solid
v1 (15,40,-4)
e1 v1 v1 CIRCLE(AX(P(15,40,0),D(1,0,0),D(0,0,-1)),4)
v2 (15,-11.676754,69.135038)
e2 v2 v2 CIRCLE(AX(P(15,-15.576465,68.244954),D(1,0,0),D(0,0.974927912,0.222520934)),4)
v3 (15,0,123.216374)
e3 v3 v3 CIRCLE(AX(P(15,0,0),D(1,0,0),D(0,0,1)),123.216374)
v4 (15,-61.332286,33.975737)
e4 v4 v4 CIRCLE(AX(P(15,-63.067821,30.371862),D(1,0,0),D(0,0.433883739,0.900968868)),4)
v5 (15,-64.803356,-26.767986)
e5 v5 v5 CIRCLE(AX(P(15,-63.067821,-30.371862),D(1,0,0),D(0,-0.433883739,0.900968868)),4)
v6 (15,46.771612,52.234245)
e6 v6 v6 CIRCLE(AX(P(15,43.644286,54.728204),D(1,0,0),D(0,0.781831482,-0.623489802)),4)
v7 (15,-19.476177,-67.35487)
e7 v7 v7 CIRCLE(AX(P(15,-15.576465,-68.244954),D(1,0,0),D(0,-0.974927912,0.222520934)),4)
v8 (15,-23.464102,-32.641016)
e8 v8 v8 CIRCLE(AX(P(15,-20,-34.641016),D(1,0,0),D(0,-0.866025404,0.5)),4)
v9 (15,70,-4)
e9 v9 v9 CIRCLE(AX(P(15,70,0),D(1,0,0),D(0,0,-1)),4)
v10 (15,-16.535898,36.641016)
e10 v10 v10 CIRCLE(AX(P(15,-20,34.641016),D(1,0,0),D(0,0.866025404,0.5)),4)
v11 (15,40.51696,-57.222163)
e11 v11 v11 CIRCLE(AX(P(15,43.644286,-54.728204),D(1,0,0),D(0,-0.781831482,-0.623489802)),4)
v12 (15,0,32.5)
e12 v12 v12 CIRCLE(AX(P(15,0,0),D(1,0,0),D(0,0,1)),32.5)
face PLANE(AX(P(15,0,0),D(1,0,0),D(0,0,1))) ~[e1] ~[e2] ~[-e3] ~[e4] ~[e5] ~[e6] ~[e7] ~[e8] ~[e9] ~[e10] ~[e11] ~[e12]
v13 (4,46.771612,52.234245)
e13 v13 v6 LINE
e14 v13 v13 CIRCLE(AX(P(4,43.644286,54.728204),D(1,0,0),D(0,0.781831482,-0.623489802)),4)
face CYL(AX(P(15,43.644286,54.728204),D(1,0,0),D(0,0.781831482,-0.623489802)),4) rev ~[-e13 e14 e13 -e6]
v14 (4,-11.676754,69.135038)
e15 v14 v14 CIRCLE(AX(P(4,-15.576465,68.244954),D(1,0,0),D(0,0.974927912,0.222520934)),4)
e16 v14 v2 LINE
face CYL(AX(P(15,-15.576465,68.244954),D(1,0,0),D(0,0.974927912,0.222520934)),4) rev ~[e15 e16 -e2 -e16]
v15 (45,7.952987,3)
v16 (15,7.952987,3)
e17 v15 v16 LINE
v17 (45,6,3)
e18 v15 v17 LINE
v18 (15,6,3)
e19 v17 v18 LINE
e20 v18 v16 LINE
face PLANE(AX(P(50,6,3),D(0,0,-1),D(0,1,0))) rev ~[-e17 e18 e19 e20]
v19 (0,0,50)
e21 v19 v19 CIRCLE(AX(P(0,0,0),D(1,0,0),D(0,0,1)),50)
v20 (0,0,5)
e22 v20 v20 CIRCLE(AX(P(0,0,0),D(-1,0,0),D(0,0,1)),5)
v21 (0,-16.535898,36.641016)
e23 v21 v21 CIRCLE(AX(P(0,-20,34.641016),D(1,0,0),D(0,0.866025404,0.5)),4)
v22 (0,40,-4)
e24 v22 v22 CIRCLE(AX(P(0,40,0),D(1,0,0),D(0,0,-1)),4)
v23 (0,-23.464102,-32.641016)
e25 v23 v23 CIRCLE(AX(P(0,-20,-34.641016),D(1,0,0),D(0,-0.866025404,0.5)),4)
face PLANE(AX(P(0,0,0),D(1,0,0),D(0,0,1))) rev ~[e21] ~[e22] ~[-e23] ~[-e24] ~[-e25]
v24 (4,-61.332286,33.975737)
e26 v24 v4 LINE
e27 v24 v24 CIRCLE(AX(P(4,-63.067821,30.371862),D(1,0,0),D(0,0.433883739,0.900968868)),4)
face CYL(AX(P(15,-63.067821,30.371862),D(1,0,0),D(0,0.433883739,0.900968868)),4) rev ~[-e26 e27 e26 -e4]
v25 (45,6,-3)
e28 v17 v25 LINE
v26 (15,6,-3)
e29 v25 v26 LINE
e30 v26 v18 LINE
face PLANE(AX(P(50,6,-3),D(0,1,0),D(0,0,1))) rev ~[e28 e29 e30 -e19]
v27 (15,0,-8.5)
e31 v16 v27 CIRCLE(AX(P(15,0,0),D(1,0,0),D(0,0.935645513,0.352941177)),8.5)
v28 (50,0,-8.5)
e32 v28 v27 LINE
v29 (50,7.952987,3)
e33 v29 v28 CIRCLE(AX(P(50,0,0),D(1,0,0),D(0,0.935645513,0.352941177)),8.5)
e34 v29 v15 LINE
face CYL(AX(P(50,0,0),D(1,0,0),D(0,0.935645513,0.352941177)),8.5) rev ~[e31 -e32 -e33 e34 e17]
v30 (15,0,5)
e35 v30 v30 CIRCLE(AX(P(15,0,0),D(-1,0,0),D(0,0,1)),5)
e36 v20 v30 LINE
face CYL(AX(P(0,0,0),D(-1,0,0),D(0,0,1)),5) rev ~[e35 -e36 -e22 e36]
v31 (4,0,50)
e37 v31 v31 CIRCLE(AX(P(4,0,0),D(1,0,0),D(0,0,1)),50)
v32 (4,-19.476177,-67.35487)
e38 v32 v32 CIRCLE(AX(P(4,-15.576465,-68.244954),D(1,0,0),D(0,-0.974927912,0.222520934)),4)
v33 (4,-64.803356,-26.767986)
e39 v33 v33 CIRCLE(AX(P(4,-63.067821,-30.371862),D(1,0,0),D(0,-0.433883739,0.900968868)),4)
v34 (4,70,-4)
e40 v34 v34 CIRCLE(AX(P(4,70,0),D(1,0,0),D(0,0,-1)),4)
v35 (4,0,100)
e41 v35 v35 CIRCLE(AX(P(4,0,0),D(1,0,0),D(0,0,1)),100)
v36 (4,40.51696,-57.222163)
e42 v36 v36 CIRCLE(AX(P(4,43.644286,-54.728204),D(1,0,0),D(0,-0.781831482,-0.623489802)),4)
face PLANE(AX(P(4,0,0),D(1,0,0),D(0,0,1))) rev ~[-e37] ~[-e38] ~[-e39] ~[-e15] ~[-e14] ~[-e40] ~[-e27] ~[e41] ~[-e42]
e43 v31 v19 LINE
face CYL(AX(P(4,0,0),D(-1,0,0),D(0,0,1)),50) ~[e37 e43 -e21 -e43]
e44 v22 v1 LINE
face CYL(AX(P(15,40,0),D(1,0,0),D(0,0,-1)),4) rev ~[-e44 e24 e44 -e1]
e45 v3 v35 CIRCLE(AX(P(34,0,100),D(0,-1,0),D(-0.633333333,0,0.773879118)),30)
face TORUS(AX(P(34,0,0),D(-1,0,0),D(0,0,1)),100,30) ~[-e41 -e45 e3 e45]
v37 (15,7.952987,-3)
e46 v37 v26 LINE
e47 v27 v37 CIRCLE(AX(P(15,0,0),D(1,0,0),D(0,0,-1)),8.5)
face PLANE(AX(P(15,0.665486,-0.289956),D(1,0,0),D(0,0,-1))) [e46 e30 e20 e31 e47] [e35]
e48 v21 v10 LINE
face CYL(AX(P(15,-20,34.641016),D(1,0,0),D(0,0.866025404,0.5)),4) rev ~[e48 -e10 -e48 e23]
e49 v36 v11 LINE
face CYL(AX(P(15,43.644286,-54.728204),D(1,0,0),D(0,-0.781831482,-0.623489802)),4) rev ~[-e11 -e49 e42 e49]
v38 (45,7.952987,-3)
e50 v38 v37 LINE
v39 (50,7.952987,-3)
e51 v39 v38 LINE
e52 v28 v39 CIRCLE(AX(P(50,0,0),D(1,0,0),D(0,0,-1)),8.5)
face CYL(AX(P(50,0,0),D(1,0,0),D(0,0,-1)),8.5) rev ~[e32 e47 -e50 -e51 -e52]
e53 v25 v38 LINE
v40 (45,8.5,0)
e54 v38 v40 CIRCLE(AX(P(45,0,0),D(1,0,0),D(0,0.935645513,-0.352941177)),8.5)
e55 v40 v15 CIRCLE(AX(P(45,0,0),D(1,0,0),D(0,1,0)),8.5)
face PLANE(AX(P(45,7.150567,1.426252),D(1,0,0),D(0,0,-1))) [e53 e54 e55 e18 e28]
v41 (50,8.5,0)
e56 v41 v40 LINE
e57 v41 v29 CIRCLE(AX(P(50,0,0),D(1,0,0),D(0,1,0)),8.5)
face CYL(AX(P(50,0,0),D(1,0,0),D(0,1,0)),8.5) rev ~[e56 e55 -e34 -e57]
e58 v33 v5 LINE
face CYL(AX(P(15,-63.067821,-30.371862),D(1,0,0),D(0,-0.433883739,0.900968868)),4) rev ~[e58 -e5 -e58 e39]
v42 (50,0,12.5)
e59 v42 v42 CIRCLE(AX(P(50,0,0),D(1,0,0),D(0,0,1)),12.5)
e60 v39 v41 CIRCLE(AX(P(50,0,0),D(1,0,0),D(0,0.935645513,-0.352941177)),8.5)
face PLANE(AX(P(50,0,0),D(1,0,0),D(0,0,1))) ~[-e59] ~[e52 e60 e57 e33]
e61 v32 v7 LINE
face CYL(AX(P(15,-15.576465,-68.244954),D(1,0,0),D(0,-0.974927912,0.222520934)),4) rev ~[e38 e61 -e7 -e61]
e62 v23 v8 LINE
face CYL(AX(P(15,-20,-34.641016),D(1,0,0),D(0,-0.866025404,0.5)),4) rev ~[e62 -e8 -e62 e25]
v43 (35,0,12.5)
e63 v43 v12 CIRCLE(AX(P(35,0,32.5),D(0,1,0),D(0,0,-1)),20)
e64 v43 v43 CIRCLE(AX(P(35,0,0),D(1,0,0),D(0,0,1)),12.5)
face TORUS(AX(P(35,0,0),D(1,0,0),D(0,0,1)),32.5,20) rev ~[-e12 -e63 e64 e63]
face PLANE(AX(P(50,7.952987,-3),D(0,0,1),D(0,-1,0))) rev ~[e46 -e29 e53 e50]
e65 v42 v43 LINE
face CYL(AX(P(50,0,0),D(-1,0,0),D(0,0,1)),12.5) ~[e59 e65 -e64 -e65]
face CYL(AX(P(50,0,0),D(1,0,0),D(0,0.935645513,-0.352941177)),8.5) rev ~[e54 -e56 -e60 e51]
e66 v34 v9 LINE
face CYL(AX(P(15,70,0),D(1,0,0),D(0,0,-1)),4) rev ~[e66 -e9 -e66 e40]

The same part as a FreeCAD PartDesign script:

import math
import FreeCAD as App
import Part
import Sketcher

doc = App.newDocument("Part")
body = doc.addObject("PartDesign::Body", "Body")

# Sketch on XY plane
sketch1 = body.newObject("Sketcher::SketchObject", "Sketch")
sketch1.AttachmentSupport = (doc.getObject("XY_Plane"), [""])
sketch1.MapMode = "FlatFace"
sketch1.addGeometry(Part.LineSegment(App.Vector(0, 0, 0), App.Vector(50, 0, 0)), False)
sketch1.addGeometry(Part.LineSegment(App.Vector(50, 0, 0), App.Vector(50, 12.5, 0)), False)
sketch1.addGeometry(Part.LineSegment(App.Vector(50, 12.5, 0), App.Vector(35, 12.5, 0)), False)
sketch1.addGeometry(Part.ArcOfCircle(Part.Circle(App.Vector(35, 32.5, 0), App.Vector(0, 0, 1), 20), math.radians(180), math.radians(270)), False)
sketch1.addGeometry(Part.LineSegment(App.Vector(15, 32.5, 0), App.Vector(15, 123.216374, 0)), False)
sketch1.addGeometry(Part.ArcOfCircle(Part.Circle(App.Vector(34, 100, 0), App.Vector(0, 0, 1), 30), math.radians(129.29648), math.radians(180)), False)
sketch1.addGeometry(Part.LineSegment(App.Vector(4, 100, 0), App.Vector(4, 50, 0)), False)
sketch1.addGeometry(Part.LineSegment(App.Vector(4, 50, 0), App.Vector(0, 50, 0)), False)
sketch1.addGeometry(Part.LineSegment(App.Vector(0, 50, 0), App.Vector(0, 0, 0)), False)
sketch1.addConstraint(Sketcher.Constraint("Coincident", 0, 2, 1, 1))
sketch1.addConstraint(Sketcher.Constraint("Coincident", 1, 2, 2, 1))
sketch1.addConstraint(Sketcher.Constraint("Tangent", 2, 2, 3, 2))
sketch1.addConstraint(Sketcher.Constraint("Tangent", 3, 1, 4, 1))
sketch1.addConstraint(Sketcher.Constraint("Coincident", 4, 2, 5, 1))
sketch1.addConstraint(Sketcher.Constraint("Tangent", 5, 2, 6, 1))
sketch1.addConstraint(Sketcher.Constraint("Coincident", 6, 2, 7, 1))
sketch1.addConstraint(Sketcher.Constraint("Coincident", 7, 2, 8, 1))
sketch1.addConstraint(Sketcher.Constraint("Coincident", 8, 2, 0, 1))
sketch1.addConstraint(Sketcher.Constraint("Horizontal", 0))
sketch1.addConstraint(Sketcher.Constraint("Vertical", 1))
sketch1.addConstraint(Sketcher.Constraint("Horizontal", 2))
sketch1.addConstraint(Sketcher.Constraint("Vertical", 4))
sketch1.addConstraint(Sketcher.Constraint("Vertical", 6))
sketch1.addConstraint(Sketcher.Constraint("Horizontal", 7))
sketch1.addConstraint(Sketcher.Constraint("Vertical", 8))
sketch1.addConstraint(Sketcher.Constraint("Coincident", 8, 2, -1, 1))
sketch1.addConstraint(Sketcher.Constraint("Equal", 0, 6))
sketch1.addConstraint(Sketcher.Constraint("Equal", 6, 8))
sketch1.addConstraint(Sketcher.Constraint("Radius", 3, 20.0))
sketch1.addConstraint(Sketcher.Constraint("Radius", 5, 30.0))
sketch1.addConstraint(Sketcher.Constraint("DistanceX", 0, 1, 0, 2, 50.0))
sketch1.addConstraint(Sketcher.Constraint("DistanceX", 2, 2, 2, 1, 15.0))
sketch1.addConstraint(Sketcher.Constraint("DistanceX", 7, 2, 7, 1, 4.0))
sketch1.addConstraint(Sketcher.Constraint("DistanceY", 1, 1, 1, 2, 12.5))
revolution = body.newObject("PartDesign::Revolution", "Revolution")
revolution.Profile = sketch1
revolution.ReferenceAxis = (sketch1, ["H_Axis"])
revolution.Angle = 360

# Sketch on YZ plane
sketch2 = body.newObject("Sketcher::SketchObject", "Sketch001")
sketch2.AttachmentSupport = (doc.getObject("YZ_Plane"), [""])
sketch2.MapMode = "FlatFace"
sketch2.AttachmentOffset = App.Placement(App.Vector(0, 0, 50), App.Rotation())
sketch2.addGeometry(Part.LineSegment(App.Vector(6, 3, 0), App.Vector(7.952987, 3, 0)), False)
sketch2.addGeometry(Part.ArcOfCircle(Part.Circle(App.Vector(0, 0, 0), App.Vector(0, 0, 1), 8.5), math.radians(20.667316), math.radians(270)), False)
sketch2.addGeometry(Part.ArcOfCircle(Part.Circle(App.Vector(0, 0, 0), App.Vector(0, 0, 1), 8.5), math.radians(-90), math.radians(-20.667316)), False)
sketch2.addGeometry(Part.LineSegment(App.Vector(7.952987, -3, 0), App.Vector(6, -3, 0)), False)
sketch2.addGeometry(Part.LineSegment(App.Vector(6, -3, 0), App.Vector(6, 3, 0)), False)
sketch2.addConstraint(Sketcher.Constraint("Coincident", 0, 2, 1, 1))
sketch2.addConstraint(Sketcher.Constraint("Tangent", 1, 2, 2, 1))
sketch2.addConstraint(Sketcher.Constraint("Coincident", 2, 2, 3, 1))
sketch2.addConstraint(Sketcher.Constraint("Coincident", 3, 2, 4, 1))
sketch2.addConstraint(Sketcher.Constraint("Coincident", 4, 2, 0, 1))
sketch2.addConstraint(Sketcher.Constraint("Horizontal", 0))
sketch2.addConstraint(Sketcher.Constraint("Horizontal", 3))
sketch2.addConstraint(Sketcher.Constraint("Vertical", 4))
sketch2.addConstraint(Sketcher.Constraint("Coincident", 1, 3, -1, 1))
sketch2.addConstraint(Sketcher.Constraint("Equal", 1, 2))
sketch2.addConstraint(Sketcher.Constraint("PointOnObject", 1, 2, -2))
sketch2.addConstraint(Sketcher.Constraint("Vertical", 0, 2, 2, 2))
sketch2.addConstraint(Sketcher.Constraint("Radius", 1, 8.5))
sketch2.addConstraint(Sketcher.Constraint("DistanceY", 4, 1, 4, 2, 6.0))
sketch2.addConstraint(Sketcher.Constraint("DistanceX", -1, 1, 3, 2, 6.0))
pocket1 = body.newObject("PartDesign::Pocket", "Pocket")
pocket1.Profile = sketch2
pocket1.Length = 35

# Sketch on YZ plane
sketch3 = body.newObject("Sketcher::SketchObject", "Sketch002")
sketch3.AttachmentSupport = (doc.getObject("YZ_Plane"), [""])
sketch3.MapMode = "FlatFace"
sketch3.AttachmentOffset = App.Placement(App.Vector(0, 0, 50), App.Rotation())
sketch3.addGeometry(Part.ArcOfCircle(Part.Circle(App.Vector(0, 0, 0), App.Vector(0, 0, 1), 8.5), math.radians(0), math.radians(20.667317)), False)
sketch3.addGeometry(Part.LineSegment(App.Vector(7.952987, 3, 0), App.Vector(6, 3, 0)), False)
sketch3.addGeometry(Part.LineSegment(App.Vector(6, 3, 0), App.Vector(6, -3, 0)), False)
sketch3.addGeometry(Part.LineSegment(App.Vector(6, -3, 0), App.Vector(7.952987, -3, 0)), False)
sketch3.addGeometry(Part.ArcOfCircle(Part.Circle(App.Vector(0, 0, 0), App.Vector(0, 0, 1), 8.5), math.radians(-20.667317), math.radians(0)), False)
sketch3.addConstraint(Sketcher.Constraint("Coincident", 0, 2, 1, 1))
sketch3.addConstraint(Sketcher.Constraint("Coincident", 1, 2, 2, 1))
sketch3.addConstraint(Sketcher.Constraint("Coincident", 2, 2, 3, 1))
sketch3.addConstraint(Sketcher.Constraint("Coincident", 3, 2, 4, 1))
sketch3.addConstraint(Sketcher.Constraint("Tangent", 4, 2, 0, 1))
sketch3.addConstraint(Sketcher.Constraint("Horizontal", 1))
sketch3.addConstraint(Sketcher.Constraint("Vertical", 2))
sketch3.addConstraint(Sketcher.Constraint("Horizontal", 3))
sketch3.addConstraint(Sketcher.Constraint("Coincident", 0, 3, -1, 1))
sketch3.addConstraint(Sketcher.Constraint("Equal", 0, 4))
sketch3.addConstraint(Sketcher.Constraint("PointOnObject", 4, 2, -1))
sketch3.addConstraint(Sketcher.Constraint("Vertical", 0, 2, 3, 2))
sketch3.addConstraint(Sketcher.Constraint("Radius", 0, 8.5))
sketch3.addConstraint(Sketcher.Constraint("DistanceY", 2, 2, 2, 1, 6.0))
sketch3.addConstraint(Sketcher.Constraint("DistanceX", -1, 1, 1, 2, 6.0))
pocket2 = body.newObject("PartDesign::Pocket", "Pocket001")
pocket2.Profile = sketch3
pocket2.Length = 5

# Sketch on YZ plane
sketch4 = body.newObject("Sketcher::SketchObject", "Sketch003")
sketch4.AttachmentSupport = (doc.getObject("YZ_Plane"), [""])
sketch4.MapMode = "FlatFace"
sketch4.addGeometry(Part.Circle(App.Vector(0, 0, 0), App.Vector(0, 0, 1), 5), False)
sketch4.addConstraint(Sketcher.Constraint("Coincident", 0, 3, -1, 1))
sketch4.addConstraint(Sketcher.Constraint("Diameter", 0, 10.0))
pocket3 = body.newObject("PartDesign::Pocket", "Pocket002")
pocket3.Profile = sketch4
pocket3.Length = 25
pocket3.Reversed = True

# Sketch on YZ plane
sketch5 = body.newObject("Sketcher::SketchObject", "Sketch004")
sketch5.AttachmentSupport = (doc.getObject("YZ_Plane"), [""])
sketch5.MapMode = "FlatFace"
sketch5.AttachmentOffset = App.Placement(App.Vector(0, 0, 15), App.Rotation())
sketch5.addGeometry(Part.Circle(App.Vector(70, 0, 0), App.Vector(0, 0, 1), 4), False)
sketch5.addConstraint(Sketcher.Constraint("PointOnObject", 0, 3, -1))
sketch5.addConstraint(Sketcher.Constraint("Diameter", 0, 8.0))
sketch5.addConstraint(Sketcher.Constraint("DistanceX", -1, 1, 0, 3, 70.0))
pocket4 = body.newObject("PartDesign::Pocket", "Pocket003")
pocket4.Profile = sketch5
pocket4.Length = 357.468983
pocket4.Midplane = True
doc.recompute()

polarpattern = body.newObject("PartDesign::PolarPattern", "PolarPattern")
polarpattern.Originals = [pocket4]
polarpattern.Axis = (doc.getObject("X_Axis"), [""])
polarpattern.Angle = 360
polarpattern.Occurrences = 7
body.Tip = polarpattern

# Sketch on YZ plane
sketch6 = body.newObject("Sketcher::SketchObject", "Sketch005")
sketch6.AttachmentSupport = (doc.getObject("YZ_Plane"), [""])
sketch6.MapMode = "FlatFace"
sketch6.AttachmentOffset = App.Placement(App.Vector(0, 0, 15), App.Rotation())
sketch6.addGeometry(Part.Circle(App.Vector(40, 0, 0), App.Vector(0, 0, 1), 4), False)
sketch6.addConstraint(Sketcher.Constraint("PointOnObject", 0, 3, -1))
sketch6.addConstraint(Sketcher.Constraint("Diameter", 0, 8.0))
sketch6.addConstraint(Sketcher.Constraint("DistanceX", -1, 1, 0, 3, 40.0))
pocket5 = body.newObject("PartDesign::Pocket", "Pocket004")
pocket5.Profile = sketch6
pocket5.Length = 357.468983
pocket5.Midplane = True
doc.recompute()

polarpattern2 = body.newObject("PartDesign::PolarPattern", "PolarPattern001")
polarpattern2.Originals = [pocket5]
polarpattern2.Axis = (doc.getObject("X_Axis"), [""])
polarpattern2.Angle = 360
polarpattern2.Occurrences = 3
body.Tip = polarpattern2

doc.recompute()
